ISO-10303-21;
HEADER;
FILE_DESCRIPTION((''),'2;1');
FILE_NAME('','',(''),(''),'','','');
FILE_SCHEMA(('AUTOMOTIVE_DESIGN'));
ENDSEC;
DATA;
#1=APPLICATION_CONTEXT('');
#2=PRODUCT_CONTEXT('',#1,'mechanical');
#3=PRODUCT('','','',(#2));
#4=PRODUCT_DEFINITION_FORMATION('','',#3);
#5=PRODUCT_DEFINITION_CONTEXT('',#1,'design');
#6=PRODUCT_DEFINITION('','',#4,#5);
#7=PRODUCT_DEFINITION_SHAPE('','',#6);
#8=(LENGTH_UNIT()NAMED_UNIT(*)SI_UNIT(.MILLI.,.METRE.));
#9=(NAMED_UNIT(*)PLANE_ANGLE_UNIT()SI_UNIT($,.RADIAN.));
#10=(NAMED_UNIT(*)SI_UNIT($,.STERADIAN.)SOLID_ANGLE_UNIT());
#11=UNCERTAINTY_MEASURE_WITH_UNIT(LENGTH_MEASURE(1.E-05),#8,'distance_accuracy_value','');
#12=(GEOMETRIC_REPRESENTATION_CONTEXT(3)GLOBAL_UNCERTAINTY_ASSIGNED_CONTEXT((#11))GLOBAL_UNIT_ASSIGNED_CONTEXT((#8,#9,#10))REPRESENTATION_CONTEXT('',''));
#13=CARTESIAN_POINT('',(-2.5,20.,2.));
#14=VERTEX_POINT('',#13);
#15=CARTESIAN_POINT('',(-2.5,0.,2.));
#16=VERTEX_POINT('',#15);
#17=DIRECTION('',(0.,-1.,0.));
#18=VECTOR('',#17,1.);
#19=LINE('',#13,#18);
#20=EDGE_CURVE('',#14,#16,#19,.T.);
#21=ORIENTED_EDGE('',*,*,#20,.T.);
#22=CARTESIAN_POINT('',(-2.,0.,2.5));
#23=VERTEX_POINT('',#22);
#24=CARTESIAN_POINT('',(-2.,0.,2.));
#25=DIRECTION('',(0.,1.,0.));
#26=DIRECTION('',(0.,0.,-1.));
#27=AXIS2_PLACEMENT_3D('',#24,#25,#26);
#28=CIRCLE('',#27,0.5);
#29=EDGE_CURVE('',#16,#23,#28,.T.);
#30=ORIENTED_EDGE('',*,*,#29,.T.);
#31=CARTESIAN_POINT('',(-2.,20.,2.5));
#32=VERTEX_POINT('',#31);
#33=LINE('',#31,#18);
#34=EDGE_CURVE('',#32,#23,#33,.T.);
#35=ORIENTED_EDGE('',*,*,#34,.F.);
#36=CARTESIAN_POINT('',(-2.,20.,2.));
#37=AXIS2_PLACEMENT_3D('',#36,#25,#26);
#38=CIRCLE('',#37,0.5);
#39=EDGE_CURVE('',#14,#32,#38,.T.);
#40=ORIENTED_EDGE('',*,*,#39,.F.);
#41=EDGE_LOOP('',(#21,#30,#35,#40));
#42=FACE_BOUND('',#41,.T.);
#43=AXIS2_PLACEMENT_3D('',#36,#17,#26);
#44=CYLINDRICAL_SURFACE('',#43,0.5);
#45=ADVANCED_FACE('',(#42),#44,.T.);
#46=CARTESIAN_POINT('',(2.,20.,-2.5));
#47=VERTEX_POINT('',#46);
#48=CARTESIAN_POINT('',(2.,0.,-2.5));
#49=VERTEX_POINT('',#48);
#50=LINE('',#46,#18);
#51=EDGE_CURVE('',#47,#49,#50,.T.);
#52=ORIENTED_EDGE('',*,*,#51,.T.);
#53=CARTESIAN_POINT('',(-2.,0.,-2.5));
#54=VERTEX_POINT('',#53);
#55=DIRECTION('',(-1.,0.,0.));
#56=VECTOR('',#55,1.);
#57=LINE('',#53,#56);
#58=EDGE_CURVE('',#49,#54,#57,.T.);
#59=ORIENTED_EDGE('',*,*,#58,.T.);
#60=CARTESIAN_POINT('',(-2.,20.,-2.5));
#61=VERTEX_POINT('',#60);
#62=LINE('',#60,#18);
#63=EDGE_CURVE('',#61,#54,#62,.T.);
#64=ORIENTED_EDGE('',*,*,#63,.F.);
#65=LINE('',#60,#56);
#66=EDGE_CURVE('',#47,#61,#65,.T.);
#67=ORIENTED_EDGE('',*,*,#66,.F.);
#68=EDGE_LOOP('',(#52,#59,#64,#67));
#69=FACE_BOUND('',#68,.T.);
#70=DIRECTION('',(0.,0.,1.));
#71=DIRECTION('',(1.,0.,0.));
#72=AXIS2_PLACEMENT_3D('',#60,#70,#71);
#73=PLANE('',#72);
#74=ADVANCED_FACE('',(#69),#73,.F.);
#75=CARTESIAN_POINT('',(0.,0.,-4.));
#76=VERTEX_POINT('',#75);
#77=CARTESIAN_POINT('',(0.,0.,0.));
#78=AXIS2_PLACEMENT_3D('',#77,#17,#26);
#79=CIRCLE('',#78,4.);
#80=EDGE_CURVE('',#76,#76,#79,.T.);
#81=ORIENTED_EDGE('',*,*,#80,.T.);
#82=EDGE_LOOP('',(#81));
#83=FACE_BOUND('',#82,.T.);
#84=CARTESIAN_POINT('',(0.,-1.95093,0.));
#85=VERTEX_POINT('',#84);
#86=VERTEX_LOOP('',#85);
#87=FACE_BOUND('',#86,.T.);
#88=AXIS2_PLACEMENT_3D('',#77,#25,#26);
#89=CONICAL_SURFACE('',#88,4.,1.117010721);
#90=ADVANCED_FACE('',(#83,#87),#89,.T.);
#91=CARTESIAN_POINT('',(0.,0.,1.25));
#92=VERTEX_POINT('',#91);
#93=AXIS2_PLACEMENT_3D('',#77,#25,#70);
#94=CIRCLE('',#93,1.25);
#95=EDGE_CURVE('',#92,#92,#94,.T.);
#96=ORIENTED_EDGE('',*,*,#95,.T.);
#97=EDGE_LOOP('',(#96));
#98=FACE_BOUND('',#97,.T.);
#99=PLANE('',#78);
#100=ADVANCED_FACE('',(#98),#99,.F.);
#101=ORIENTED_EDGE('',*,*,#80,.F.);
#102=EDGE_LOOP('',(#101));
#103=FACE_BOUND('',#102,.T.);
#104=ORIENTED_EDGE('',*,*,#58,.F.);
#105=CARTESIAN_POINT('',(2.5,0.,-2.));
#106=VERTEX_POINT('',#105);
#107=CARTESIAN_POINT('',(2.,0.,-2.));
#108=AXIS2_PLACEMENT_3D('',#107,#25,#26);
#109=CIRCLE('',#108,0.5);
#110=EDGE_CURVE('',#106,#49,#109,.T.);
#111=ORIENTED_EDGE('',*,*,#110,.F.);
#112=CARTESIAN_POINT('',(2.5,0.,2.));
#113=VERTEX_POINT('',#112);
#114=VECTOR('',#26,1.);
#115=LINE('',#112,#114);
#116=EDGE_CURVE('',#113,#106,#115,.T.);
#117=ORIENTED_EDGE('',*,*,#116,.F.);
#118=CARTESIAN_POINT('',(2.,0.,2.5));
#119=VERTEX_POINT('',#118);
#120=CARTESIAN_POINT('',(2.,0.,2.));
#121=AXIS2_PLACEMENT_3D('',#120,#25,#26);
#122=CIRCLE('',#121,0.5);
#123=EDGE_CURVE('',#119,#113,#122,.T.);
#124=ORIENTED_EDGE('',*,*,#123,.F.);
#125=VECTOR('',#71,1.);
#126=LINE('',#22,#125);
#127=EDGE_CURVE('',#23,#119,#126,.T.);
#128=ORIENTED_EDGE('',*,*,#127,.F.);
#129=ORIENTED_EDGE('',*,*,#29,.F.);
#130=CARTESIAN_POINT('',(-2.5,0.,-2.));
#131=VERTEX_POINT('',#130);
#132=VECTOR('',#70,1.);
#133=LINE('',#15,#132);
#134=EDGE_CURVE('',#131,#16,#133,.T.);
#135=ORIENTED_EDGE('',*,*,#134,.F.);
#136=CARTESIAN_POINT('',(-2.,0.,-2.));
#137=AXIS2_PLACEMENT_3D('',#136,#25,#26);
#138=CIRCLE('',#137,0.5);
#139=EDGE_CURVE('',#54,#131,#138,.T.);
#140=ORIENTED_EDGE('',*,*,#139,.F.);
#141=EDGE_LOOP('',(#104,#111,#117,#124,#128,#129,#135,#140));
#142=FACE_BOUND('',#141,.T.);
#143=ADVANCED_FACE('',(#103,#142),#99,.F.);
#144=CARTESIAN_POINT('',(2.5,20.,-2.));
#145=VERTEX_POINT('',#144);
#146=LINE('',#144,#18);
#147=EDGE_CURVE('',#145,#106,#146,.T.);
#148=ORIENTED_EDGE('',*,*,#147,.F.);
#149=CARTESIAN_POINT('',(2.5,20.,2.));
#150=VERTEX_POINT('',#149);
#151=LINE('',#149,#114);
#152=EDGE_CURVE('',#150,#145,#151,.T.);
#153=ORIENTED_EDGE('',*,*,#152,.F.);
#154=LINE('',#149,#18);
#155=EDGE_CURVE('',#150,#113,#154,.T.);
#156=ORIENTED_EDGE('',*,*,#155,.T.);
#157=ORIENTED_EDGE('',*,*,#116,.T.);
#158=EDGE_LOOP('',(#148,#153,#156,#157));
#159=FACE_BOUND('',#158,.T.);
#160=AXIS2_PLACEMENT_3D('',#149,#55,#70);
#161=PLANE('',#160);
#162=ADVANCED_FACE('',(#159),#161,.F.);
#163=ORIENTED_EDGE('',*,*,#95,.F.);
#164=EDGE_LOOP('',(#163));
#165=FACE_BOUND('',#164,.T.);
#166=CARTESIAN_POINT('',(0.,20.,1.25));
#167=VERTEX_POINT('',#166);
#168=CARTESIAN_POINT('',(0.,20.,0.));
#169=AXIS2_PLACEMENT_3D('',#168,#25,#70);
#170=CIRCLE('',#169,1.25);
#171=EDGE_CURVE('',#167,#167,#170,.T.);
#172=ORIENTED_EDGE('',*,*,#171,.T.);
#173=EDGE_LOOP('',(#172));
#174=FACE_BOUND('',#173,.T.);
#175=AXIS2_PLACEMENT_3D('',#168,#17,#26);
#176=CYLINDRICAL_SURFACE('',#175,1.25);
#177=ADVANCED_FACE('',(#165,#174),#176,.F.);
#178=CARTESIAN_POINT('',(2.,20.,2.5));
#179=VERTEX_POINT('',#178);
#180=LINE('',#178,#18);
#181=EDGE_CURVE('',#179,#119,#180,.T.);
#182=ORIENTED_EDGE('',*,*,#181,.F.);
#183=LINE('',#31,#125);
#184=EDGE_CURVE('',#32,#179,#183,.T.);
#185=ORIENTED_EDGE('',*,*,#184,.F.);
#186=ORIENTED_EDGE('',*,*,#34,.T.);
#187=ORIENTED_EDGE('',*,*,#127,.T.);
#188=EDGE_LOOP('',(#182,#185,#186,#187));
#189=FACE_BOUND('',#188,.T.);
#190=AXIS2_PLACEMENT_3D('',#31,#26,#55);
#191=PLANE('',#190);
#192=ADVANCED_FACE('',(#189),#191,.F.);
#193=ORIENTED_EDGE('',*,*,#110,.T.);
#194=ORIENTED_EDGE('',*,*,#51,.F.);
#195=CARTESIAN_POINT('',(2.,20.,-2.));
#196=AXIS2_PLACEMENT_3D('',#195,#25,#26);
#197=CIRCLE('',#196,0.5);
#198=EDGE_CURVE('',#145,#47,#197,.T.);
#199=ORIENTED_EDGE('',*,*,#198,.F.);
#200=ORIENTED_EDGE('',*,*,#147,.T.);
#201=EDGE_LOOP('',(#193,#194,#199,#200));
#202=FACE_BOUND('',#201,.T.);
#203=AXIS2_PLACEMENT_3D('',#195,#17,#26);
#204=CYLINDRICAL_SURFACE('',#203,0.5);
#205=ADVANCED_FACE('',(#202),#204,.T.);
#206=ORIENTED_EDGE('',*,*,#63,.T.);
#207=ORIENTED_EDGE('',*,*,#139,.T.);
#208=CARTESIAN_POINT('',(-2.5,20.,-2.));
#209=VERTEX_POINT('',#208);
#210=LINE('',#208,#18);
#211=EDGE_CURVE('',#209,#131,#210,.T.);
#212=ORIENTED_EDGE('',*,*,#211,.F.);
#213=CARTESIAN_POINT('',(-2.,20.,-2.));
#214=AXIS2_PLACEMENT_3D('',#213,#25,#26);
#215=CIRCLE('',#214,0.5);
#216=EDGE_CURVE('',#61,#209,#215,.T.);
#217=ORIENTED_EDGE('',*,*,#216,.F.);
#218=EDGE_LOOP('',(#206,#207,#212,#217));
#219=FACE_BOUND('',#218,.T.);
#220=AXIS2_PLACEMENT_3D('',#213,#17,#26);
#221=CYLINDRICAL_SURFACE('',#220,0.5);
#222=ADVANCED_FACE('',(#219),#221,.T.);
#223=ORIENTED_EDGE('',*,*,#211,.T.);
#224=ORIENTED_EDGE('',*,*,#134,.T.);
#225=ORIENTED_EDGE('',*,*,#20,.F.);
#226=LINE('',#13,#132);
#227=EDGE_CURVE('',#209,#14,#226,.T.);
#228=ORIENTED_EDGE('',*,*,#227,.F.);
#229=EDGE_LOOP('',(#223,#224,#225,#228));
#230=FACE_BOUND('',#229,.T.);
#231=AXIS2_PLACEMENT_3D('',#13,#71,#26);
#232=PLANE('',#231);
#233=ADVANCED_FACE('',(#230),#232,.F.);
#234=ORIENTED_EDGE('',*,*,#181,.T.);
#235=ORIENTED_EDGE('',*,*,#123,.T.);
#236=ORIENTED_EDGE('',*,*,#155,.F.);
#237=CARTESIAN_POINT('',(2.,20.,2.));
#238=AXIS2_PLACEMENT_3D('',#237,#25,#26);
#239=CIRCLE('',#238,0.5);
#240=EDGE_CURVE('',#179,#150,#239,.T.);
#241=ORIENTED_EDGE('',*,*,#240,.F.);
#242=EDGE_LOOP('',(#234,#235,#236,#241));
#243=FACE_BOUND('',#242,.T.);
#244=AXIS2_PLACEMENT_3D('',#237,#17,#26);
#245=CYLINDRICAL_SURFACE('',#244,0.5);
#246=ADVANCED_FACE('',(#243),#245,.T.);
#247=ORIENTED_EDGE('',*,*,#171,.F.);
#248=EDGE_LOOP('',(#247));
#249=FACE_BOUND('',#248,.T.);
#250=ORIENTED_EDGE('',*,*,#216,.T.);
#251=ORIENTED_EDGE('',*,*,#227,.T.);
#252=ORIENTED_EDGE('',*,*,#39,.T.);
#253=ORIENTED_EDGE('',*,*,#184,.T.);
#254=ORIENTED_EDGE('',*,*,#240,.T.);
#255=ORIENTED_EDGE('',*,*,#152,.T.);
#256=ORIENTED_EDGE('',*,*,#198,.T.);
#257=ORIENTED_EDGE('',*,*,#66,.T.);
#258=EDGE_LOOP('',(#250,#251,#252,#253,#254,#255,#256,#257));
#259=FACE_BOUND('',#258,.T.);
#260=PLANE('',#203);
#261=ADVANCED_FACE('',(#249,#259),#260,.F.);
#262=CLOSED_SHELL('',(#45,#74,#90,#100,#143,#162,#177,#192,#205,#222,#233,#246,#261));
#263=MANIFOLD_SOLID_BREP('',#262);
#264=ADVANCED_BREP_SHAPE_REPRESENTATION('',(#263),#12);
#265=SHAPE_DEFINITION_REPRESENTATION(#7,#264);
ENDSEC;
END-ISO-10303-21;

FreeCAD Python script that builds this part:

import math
import FreeCAD as App
import Part
import Sketcher

V = App.Vector
Q = App.Units.Quantity

doc = App.newDocument("Part")
body = doc.addObject("PartDesign::Body", "Body")

# Sketch on XZ plane
sketch1 = body.newObject("Sketcher::SketchObject", "Sketch")
sketch1.AttachmentSupport = (doc.getObject("XZ_Plane"), [""])
sketch1.MapMode = "FlatFace"
sketch1.addGeometry([
    Part.LineSegment(V(-2, 2.5, 0), V(2, 2.5, 0)),  # 0
    Part.ArcOfCircle(Part.Circle(V(2, 2, 0), V(0, 0, 1), 0.5), math.radians(0), math.radians(90)),  # 1
    Part.LineSegment(V(2.5, 2, 0), V(2.5, -2, 0)),  # 2
    Part.ArcOfCircle(Part.Circle(V(2, -2, 0), V(0, 0, 1), 0.5), math.radians(-90), math.radians(0)),  # 3
    Part.LineSegment(V(2, -2.5, 0), V(-2, -2.5, 0)),  # 4
    Part.ArcOfCircle(Part.Circle(V(-2, -2, 0), V(0, 0, 1), 0.5), math.radians(180), math.radians(270)),  # 5
    Part.LineSegment(V(-2.5, -2, 0), V(-2.5, 2, 0)),  # 6
    Part.ArcOfCircle(Part.Circle(V(-2, 2, 0), V(0, 0, 1), 0.5), math.radians(90), math.radians(180)),  # 7
    Part.Circle(V(0, 0, 0), V(0, 0, 1), 1.25),  # 8
], False)
sketch1.addConstraint([
    Sketcher.Constraint("Tangent", 0, 2, 1, 2),
    Sketcher.Constraint("Tangent", 1, 1, 2, 1),
    Sketcher.Constraint("Tangent", 2, 2, 3, 2),
    Sketcher.Constraint("Tangent", 3, 1, 4, 1),
    Sketcher.Constraint("Tangent", 4, 2, 5, 2),
    Sketcher.Constraint("Tangent", 5, 1, 6, 1),
    Sketcher.Constraint("Tangent", 6, 2, 7, 2),
    Sketcher.Constraint("Tangent", 7, 1, 0, 1),
    Sketcher.Constraint("Horizontal", 0),
    Sketcher.Constraint("Vertical", 2),
    Sketcher.Constraint("Horizontal", 4),
    Sketcher.Constraint("Vertical", 6),
    Sketcher.Constraint("Coincident", 8, 3, -1, 1),
    Sketcher.Constraint("Equal", 1, 3),
    Sketcher.Constraint("Equal", 3, 5),
    Sketcher.Constraint("Equal", 5, 7),
    Sketcher.Constraint("Symmetric", 1, 3, 5, 3, -1, 1),
    Sketcher.Constraint("Equal", 4, 2),
    Sketcher.Constraint("Diameter", 8, Q("2.5 mm")),
    Sketcher.Constraint("Radius", 1, Q("0.5 mm")),
    Sketcher.Constraint("DistanceX", 0, 1, 0, 2, Q("4 mm")),
])
pad1 = body.newObject("PartDesign::Pad", "Pad")
pad1.Profile = sketch1
pad1.Length = 20
pad1.Reversed = True

# Sketch on YZ plane
sketch2 = body.newObject("Sketcher::SketchObject", "Sketch001")
sketch2.AttachmentSupport = (doc.getObject("YZ_Plane"), [""])
sketch2.MapMode = "FlatFace"
sketch2.addGeometry([
    Part.LineSegment(V(0, 0, 0), V(0, 4, 0)),
    Part.LineSegment(V(0, 4, 0), V(-2, 0, 0)),
    Part.LineSegment(V(-2, 0, 0), V(0, 0, 0)),
], False)
sketch2.addConstraint([
    Sketcher.Constraint("Coincident", 0, 2, 1, 1),
    Sketcher.Constraint("Coincident", 1, 2, 2, 1),
    Sketcher.Constraint("Coincident", 2, 2, 0, 1),
    Sketcher.Constraint("Vertical", 0),
    Sketcher.Constraint("Horizontal", 2),
    Sketcher.Constraint("Coincident", 2, 2, -1, 1),
    Sketcher.Constraint("DistanceY", 0, 1, 0, 2, Q("4 mm")),
    Sketcher.Constraint("Angle", 1, Q("-116 deg")),
])
revolution = body.newObject("PartDesign::Revolution", "Revolution")
revolution.Profile = sketch2
revolution.ReferenceAxis = (sketch2, ["H_Axis"])
revolution.Angle = 360

doc.recompute()
